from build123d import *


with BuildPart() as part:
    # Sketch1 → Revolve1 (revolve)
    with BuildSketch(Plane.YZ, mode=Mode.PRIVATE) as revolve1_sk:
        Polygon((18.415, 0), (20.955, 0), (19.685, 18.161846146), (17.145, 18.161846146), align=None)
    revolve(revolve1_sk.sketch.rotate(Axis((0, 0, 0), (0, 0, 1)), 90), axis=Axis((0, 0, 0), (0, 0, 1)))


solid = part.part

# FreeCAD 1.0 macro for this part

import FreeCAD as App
import Part
import Sketcher
from FreeCAD import Vector
Q = App.Units.Quantity


def add_polygon(sketch, points):
    """Adds a closed chain of lines whose ends are joined by coincident constraints."""
    first, n = sketch.GeometryCount, len(points)
    for a, b in zip(points, points[1:] + points[:1]):
        sketch.addGeometry(Part.LineSegment(App.Vector(*a, 0), App.Vector(*b, 0)), False)
    for i in range(n):
        sketch.addConstraint(Sketcher.Constraint("Coincident", first + i, 2, first + (i + 1) % n, 1))

doc = App.newDocument("Part")
body = doc.addObject("PartDesign::Body", "Body")

sketch1 = body.newObject("Sketcher::SketchObject", "Sketch")
sketch1.AttachmentSupport = (doc.getObject("YZ_Plane"), [""])
sketch1.MapMode = "FlatFace"
add_polygon(sketch1, [(18.4, 0), (21, 0), (19.7, 18.2), (17.1, 18.2)])
sketch1.addConstraint(Sketcher.Constraint("Horizontal", 0))
sketch1.addConstraint(Sketcher.Constraint("Horizontal", 2))
sketch1.addConstraint(Sketcher.Constraint("PointOnObject", 0, 2, -1))
sketch1.addConstraint(Sketcher.Constraint("Parallel", 1, 3))
sketch1.addConstraint(Sketcher.Constraint("DistanceX", 0, 1, 0, 2, Q("0.1 in")))
sketch1.addConstraint(Sketcher.Constraint("Angle", 1, Q("94 deg")))
sketch1.addConstraint(Sketcher.Constraint("DistanceX", 1, 2, 0, 2, Q("0.05 in")))
sketch1.addConstraint(Sketcher.Constraint("DistanceX", -1, 1, 0, 2, Q("0.825 in")))
revolution = body.newObject("PartDesign::Revolution", "Revolution")
revolution.Profile = sketch1
revolution.ReferenceAxis = (sketch1, ["V_Axis"])
revolution.Angle = 360

doc.recompute()
